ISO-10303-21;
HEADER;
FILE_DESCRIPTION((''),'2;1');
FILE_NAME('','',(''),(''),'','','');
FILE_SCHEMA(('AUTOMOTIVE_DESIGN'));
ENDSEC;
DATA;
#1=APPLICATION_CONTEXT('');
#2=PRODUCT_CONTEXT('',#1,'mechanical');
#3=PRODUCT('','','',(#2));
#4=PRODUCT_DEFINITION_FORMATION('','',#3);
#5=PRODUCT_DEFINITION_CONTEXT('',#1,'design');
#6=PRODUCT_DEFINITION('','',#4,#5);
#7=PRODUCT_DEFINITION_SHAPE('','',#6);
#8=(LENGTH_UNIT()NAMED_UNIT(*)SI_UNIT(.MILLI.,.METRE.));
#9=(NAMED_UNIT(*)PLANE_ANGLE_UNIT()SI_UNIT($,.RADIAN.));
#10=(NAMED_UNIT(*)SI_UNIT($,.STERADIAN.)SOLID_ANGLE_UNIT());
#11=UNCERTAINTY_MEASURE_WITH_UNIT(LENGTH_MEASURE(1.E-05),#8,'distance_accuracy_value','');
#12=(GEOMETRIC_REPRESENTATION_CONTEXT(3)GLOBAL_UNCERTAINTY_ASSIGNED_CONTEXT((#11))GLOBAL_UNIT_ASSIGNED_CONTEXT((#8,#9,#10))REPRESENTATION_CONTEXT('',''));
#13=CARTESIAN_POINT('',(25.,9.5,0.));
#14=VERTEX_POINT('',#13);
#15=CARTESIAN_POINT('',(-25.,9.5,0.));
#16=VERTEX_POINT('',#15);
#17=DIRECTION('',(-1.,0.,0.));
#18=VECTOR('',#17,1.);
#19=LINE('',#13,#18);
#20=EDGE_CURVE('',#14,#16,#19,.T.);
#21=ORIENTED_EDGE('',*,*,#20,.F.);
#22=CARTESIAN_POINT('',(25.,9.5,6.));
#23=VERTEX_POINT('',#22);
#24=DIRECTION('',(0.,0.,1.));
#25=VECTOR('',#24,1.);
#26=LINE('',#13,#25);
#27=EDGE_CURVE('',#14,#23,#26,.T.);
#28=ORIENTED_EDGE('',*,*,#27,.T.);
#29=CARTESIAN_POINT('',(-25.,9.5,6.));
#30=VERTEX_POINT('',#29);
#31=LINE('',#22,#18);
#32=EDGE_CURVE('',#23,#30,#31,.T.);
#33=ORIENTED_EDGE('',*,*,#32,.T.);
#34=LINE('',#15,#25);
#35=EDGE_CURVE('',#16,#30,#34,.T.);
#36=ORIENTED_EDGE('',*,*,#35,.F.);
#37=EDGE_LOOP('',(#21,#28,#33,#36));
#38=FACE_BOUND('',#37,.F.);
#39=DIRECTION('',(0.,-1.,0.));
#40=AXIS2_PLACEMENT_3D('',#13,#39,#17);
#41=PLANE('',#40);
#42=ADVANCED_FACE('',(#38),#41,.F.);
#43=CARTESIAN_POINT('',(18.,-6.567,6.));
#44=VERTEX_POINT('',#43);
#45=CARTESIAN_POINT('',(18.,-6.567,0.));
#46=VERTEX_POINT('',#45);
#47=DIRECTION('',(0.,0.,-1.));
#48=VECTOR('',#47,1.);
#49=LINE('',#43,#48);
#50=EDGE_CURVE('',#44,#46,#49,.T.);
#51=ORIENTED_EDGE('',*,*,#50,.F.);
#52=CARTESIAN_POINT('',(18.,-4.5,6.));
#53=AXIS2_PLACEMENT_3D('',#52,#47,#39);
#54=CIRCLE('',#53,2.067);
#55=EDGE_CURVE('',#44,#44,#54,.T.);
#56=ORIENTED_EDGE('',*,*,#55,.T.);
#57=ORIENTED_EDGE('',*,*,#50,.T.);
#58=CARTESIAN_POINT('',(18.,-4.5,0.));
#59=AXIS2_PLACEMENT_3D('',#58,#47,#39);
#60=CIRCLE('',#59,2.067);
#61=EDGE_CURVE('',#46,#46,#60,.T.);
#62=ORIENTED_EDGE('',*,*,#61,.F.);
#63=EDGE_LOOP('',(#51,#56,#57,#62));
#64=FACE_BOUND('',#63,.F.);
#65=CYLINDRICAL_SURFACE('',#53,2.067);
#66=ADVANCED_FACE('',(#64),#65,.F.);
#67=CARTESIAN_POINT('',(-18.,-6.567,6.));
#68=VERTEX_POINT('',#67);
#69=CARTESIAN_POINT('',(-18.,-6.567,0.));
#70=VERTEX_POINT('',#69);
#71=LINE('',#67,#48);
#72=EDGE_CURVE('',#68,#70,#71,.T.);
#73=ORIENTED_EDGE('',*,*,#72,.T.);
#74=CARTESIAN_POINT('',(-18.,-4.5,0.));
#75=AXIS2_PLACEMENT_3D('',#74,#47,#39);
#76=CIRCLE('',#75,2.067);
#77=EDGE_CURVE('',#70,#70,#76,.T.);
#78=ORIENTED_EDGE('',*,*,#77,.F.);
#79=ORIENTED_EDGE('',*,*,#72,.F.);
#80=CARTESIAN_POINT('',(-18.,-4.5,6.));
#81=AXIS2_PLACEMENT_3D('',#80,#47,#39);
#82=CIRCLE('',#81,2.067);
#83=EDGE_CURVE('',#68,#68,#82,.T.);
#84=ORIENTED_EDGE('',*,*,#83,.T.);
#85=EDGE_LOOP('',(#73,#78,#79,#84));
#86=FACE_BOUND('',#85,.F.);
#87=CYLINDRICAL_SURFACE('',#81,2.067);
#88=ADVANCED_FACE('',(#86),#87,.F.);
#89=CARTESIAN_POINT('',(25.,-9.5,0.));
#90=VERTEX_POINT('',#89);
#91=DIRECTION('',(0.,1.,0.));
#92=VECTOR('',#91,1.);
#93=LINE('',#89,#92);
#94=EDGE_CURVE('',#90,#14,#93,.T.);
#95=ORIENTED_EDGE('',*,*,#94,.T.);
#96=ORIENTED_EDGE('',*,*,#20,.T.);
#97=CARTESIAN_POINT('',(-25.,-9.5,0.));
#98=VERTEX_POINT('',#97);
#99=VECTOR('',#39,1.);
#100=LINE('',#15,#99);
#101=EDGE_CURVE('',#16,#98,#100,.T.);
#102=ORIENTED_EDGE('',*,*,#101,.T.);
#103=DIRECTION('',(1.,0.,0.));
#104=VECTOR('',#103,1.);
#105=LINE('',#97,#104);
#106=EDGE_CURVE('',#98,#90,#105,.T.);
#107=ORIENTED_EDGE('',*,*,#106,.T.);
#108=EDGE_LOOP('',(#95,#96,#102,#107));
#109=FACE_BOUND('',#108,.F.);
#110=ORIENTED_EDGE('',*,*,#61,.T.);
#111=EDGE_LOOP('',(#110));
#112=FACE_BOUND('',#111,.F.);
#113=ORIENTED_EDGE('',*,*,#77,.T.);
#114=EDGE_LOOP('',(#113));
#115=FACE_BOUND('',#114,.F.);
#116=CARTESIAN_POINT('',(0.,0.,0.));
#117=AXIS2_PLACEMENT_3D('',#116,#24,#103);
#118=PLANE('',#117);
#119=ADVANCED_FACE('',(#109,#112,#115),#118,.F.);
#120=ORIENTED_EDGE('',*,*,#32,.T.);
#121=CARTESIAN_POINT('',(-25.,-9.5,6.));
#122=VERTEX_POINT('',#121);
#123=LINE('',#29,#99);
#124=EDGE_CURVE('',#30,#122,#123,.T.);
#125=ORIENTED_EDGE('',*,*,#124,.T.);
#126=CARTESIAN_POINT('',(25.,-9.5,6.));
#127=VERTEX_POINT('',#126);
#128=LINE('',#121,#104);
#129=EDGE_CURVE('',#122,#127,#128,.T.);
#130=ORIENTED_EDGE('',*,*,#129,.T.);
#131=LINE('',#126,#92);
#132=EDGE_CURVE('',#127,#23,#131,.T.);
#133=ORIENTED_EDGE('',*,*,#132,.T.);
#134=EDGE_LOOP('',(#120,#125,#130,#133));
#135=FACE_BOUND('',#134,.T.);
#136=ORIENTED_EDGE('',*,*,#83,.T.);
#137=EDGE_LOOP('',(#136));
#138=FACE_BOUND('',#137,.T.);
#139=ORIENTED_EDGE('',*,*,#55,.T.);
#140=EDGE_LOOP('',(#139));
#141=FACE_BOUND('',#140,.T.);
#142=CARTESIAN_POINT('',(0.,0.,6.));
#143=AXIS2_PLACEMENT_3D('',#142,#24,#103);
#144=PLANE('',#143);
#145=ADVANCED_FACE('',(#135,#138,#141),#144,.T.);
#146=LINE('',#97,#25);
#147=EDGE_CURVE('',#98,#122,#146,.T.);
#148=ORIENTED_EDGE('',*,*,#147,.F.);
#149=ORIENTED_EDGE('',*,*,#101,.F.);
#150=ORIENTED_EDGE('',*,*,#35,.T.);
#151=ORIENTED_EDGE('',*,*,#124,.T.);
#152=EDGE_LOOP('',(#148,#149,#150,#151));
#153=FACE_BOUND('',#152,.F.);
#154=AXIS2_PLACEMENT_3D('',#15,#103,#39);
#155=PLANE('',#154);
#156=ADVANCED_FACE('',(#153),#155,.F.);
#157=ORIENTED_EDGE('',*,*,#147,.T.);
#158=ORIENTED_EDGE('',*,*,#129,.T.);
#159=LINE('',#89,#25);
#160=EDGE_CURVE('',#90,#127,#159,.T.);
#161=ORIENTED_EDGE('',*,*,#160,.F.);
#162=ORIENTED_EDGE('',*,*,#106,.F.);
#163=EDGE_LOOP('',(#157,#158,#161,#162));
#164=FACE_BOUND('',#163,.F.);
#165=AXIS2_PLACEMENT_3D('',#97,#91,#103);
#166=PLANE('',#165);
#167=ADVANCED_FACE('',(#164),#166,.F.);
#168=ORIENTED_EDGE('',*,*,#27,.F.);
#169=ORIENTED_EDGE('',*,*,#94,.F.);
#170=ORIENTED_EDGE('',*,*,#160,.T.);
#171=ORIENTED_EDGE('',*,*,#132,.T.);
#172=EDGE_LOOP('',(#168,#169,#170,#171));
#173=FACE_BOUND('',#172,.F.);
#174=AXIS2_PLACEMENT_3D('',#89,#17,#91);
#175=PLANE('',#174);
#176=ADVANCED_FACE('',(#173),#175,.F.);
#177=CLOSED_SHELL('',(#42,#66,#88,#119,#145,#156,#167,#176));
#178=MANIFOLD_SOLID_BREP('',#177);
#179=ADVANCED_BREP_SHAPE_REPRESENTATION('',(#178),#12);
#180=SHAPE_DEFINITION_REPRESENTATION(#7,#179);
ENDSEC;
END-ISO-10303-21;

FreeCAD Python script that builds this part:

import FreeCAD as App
import Part
import Sketcher

doc = App.newDocument("Part")
params = doc.addObject("Spreadsheet::Sheet", "Params")
for row, (alias, value) in enumerate([
    ("sketch1_width", "50 mm"),
    ("sketch1_height", "19 mm"),
    ("pad1_length", "6 mm"),
    ("hole_diameter", "4.134 mm"),
    ("hole_depth", "6 mm"),
], start=1):
    params.set(f"A{row}", alias)
    params.set(f"B{row}", "=" + value)
    params.setAlias(f"B{row}", alias)

body = doc.addObject("PartDesign::Body", "Body")

# Sketch on XY plane
sketch1 = body.newObject("Sketcher::SketchObject", "Sketch")
sketch1.AttachmentSupport = (doc.getObject("XY_Plane"), [""])
sketch1.MapMode = "FlatFace"
sketch1.addGeometry([
    Part.LineSegment(App.Vector(-25, 10, 0), App.Vector(-25, -10, 0)),
    Part.LineSegment(App.Vector(-25, -10, 0), App.Vector(25, -10, 0)),
    Part.LineSegment(App.Vector(25, -10, 0), App.Vector(25, 10, 0)),
    Part.LineSegment(App.Vector(25, 10, 0), App.Vector(-25, 10, 0)),
], False)
sketch1.addConstraint([
    Sketcher.Constraint("Coincident", 0, 2, 1, 1),
    Sketcher.Constraint("Coincident", 1, 2, 2, 1),
    Sketcher.Constraint("Coincident", 2, 2, 3, 1),
    Sketcher.Constraint("Coincident", 3, 2, 0, 1),
    Sketcher.Constraint("Vertical", 0),
    Sketcher.Constraint("Horizontal", 1),
    Sketcher.Constraint("Vertical", 2),
    Sketcher.Constraint("Horizontal", 3),
    Sketcher.Constraint("Symmetric", 0, 2, 2, 2, -1, 1),
    Sketcher.Constraint("DistanceX", 1, 1, 1, 2, 50.0),
    Sketcher.Constraint("DistanceY", 0, 2, 0, 1, 19.0),
])
sketch1.setExpression("Constraints[9]", "Params.sketch1_width")
sketch1.setExpression("Constraints[10]", "Params.sketch1_height")
pad1 = body.newObject("PartDesign::Pad", "Pad")
pad1.Profile = sketch1
pad1.setExpression("Length", "Params.pad1_length")

# Sketch on XY plane
sketch2 = body.newObject("Sketcher::SketchObject", "Sketch001")
sketch2.AttachmentSupport = (doc.getObject("XY_Plane"), [""])
sketch2.MapMode = "FlatFace"
sketch2.AttachmentOffset = App.Placement(App.Vector(0, 0, 6), App.Rotation())
sketch2.addGeometry([
    Part.Circle(App.Vector(-18, -4.5, 0), App.Vector(0, 0, 1), 2.1),
    Part.Circle(App.Vector(18, -4.5, 0), App.Vector(0, 0, 1), 2.1),
], False)
sketch2.addConstraint([
    Sketcher.Constraint("Equal", 0, 1),
    Sketcher.Constraint("Symmetric", 0, 3, 1, 3, -2),
    Sketcher.Constraint("Diameter", 0, 4.134),
    Sketcher.Constraint("DistanceX", 0, 3, -1, 1, 18.0),
    Sketcher.Constraint("DistanceY", 0, 3, -1, 1, 4.5),
])
doc.recompute()
hole = body.newObject("PartDesign::Hole", "Hole")
hole.Profile = sketch2
hole.ThreadType = "None"
hole.setExpression("Diameter", "Params.hole_diameter")
hole.DepthType = "Dimension"
hole.setExpression("Depth", "Params.hole_depth")
hole.DrillPoint = "Flat"

doc.recompute()
